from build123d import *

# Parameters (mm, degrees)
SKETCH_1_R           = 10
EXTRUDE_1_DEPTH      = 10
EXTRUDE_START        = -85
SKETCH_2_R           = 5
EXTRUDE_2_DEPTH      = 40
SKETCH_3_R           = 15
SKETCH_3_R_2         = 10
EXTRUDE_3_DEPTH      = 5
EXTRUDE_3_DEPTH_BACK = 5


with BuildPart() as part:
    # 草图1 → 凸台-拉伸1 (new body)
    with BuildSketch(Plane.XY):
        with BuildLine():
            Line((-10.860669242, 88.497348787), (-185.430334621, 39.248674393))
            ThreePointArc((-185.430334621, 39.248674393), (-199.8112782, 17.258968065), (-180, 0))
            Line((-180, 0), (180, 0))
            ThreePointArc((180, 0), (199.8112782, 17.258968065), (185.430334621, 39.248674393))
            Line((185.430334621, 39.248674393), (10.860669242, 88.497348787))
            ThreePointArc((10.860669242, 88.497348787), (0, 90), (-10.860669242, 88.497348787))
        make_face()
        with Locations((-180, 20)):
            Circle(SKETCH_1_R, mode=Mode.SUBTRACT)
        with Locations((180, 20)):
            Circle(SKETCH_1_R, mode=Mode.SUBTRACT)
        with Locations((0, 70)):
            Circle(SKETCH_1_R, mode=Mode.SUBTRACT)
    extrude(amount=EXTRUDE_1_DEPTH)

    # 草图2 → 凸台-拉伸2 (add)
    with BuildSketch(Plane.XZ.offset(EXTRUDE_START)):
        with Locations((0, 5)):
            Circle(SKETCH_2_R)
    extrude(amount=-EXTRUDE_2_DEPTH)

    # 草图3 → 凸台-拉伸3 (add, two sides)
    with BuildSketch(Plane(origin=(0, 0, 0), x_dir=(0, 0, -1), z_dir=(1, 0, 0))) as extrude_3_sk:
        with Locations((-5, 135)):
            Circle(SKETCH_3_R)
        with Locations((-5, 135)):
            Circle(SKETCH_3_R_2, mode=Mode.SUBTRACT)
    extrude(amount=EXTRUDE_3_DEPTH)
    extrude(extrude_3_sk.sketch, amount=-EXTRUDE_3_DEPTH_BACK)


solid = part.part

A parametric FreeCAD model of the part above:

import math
import FreeCAD as App
import Part
import Sketcher

V = App.Vector
Q = App.Units.Quantity

doc = App.newDocument("Part")
body = doc.addObject("PartDesign::Body", "Body")

# Sketch on XY plane
sketch1 = body.newObject("Sketcher::SketchObject", "Sketch")
sketch1.AttachmentSupport = (doc.getObject("XY_Plane"), [""])
sketch1.MapMode = "FlatFace"
sketch1.addGeometry(Part.LineSegment(V(-10.860669, 88.497349, 0), V(-185.430335, 39.248674, 0)), False)
sketch1.addGeometry(Part.ArcOfCircle(Part.Circle(V(-180, 20, 0), V(0, 0, 1), 20), math.radians(105.754541), math.radians(270)), False)
sketch1.addGeometry(Part.LineSegment(V(-180, 0, 0), V(180, 0, 0)), False)
sketch1.addGeometry(Part.ArcOfCircle(Part.Circle(V(180, 20, 0), V(0, 0, 1), 20), math.radians(-90), math.radians(74.245459)), False)
sketch1.addGeometry(Part.LineSegment(V(185.430335, 39.248674, 0), V(10.860669, 88.497349, 0)), False)
sketch1.addGeometry(Part.ArcOfCircle(Part.Circle(V(0, 50, 0), V(0, 0, 1), 40), math.radians(74.245459), math.radians(105.754541)), False)
sketch1.addGeometry(Part.Circle(V(-180, 20, 0), V(0, 0, 1), 10), False)
sketch1.addGeometry(Part.Circle(V(180, 20, 0), V(0, 0, 1), 10), False)
sketch1.addGeometry(Part.Circle(V(0, 70, 0), V(0, 0, 1), 10), False)
sketch1.addConstraint(Sketcher.Constraint("Tangent", 0, 2, 1, 1))
sketch1.addConstraint(Sketcher.Constraint("Tangent", 1, 2, 2, 1))
sketch1.addConstraint(Sketcher.Constraint("Tangent", 2, 2, 3, 1))
sketch1.addConstraint(Sketcher.Constraint("Tangent", 3, 2, 4, 1))
sketch1.addConstraint(Sketcher.Constraint("Tangent", 4, 2, 5, 1))
sketch1.addConstraint(Sketcher.Constraint("Tangent", 5, 2, 0, 1))
sketch1.addConstraint(Sketcher.Constraint("Horizontal", 2))
sketch1.addConstraint(Sketcher.Constraint("Coincident", 6, 3, 1, 3))
sketch1.addConstraint(Sketcher.Constraint("Coincident", 7, 3, 3, 3))
sketch1.addConstraint(Sketcher.Constraint("Equal", 1, 3))
sketch1.addConstraint(Sketcher.Constraint("Equal", 6, 7))
sketch1.addConstraint(Sketcher.Constraint("Equal", 7, 8))
sketch1.addConstraint(Sketcher.Constraint("Symmetric", 1, 2, 2, 2, -1, 1))
sketch1.addConstraint(Sketcher.Constraint("PointOnObject", 5, 3, -2))
sketch1.addConstraint(Sketcher.Constraint("PointOnObject", 8, 3, -2))
sketch1.addConstraint(Sketcher.Constraint("Diameter", 6, Q("20 mm")))
sketch1.addConstraint(Sketcher.Constraint("Radius", 1, Q("20 mm")))
sketch1.addConstraint(Sketcher.Constraint("Radius", 5, Q("40 mm")))
sketch1.addConstraint(Sketcher.Constraint("DistanceX", 2, 1, 2, 2, Q("360 mm")))
sketch1.addConstraint(Sketcher.Constraint("DistanceY", -1, 1, 5, 3, Q("50 mm")))
sketch1.addConstraint(Sketcher.Constraint("DistanceY", -1, 1, 8, 3, Q("70 mm")))
pad1 = body.newObject("PartDesign::Pad", "Pad")
pad1.Profile = sketch1
pad1.Length = 10

# Sketch on XZ plane
sketch2 = body.newObject("Sketcher::SketchObject", "Sketch001")
sketch2.AttachmentSupport = (doc.getObject("XZ_Plane"), [""])
sketch2.MapMode = "FlatFace"
sketch2.AttachmentOffset = App.Placement(V(0, 0, -85), App.Rotation())
sketch2.addGeometry(Part.Circle(V(0, 5, 0), V(0, 0, 1), 5), False)
sketch2.addConstraint(Sketcher.Constraint("PointOnObject", 0, 3, -2))
sketch2.addConstraint(Sketcher.Constraint("Diameter", 0, Q("10 mm")))
sketch2.addConstraint(Sketcher.Constraint("DistanceY", -1, 1, 0, 3, Q("5 mm")))
pad2 = body.newObject("PartDesign::Pad", "Pad001")
pad2.Profile = sketch2
pad2.Length = 40
pad2.Reversed = True

# Sketch on YZ plane
sketch3 = body.newObject("Sketcher::SketchObject", "Sketch002")
sketch3.AttachmentSupport = (doc.getObject("YZ_Plane"), [""])
sketch3.MapMode = "FlatFace"
sketch3.addGeometry(Part.Circle(V(135, 5, 0), V(0, 0, 1), 15), False)
sketch3.addGeometry(Part.Circle(V(135, 5, 0), V(0, 0, 1), 10), False)
sketch3.addConstraint(Sketcher.Constraint("Coincident", 1, 3, 0, 3))
sketch3.addConstraint(Sketcher.Constraint("Diameter", 0, Q("30 mm")))
sketch3.addConstraint(Sketcher.Constraint("Diameter", 1, Q("20 mm")))
sketch3.addConstraint(Sketcher.Constraint("DistanceX", -1, 1, 0, 3, Q("135 mm")))
sketch3.addConstraint(Sketcher.Constraint("DistanceY", -1, 1, 0, 3, Q("5 mm")))
pad3 = body.newObject("PartDesign::Pad", "Pad002")
pad3.Profile = sketch3
pad3.Type = "TwoLengths"
pad3.Length = 5
pad3.Length2 = 5

doc.recompute()
